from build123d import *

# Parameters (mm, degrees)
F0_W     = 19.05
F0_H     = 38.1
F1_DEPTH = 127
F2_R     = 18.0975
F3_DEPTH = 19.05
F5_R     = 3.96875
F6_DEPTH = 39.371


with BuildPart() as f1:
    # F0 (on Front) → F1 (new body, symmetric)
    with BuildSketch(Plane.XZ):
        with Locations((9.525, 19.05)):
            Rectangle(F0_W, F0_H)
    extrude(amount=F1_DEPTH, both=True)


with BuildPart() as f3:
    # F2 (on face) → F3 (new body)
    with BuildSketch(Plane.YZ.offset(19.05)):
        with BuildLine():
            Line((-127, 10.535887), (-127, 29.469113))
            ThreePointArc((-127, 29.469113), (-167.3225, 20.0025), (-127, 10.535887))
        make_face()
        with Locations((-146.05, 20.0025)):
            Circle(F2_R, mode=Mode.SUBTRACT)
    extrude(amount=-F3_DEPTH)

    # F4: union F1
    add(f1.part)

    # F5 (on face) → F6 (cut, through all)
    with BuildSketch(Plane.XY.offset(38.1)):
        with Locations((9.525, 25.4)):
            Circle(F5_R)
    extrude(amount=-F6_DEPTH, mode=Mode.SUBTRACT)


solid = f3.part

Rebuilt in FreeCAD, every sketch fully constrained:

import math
import FreeCAD as App
import Part
import Sketcher

V = App.Vector
Q = App.Units.Quantity


def add_polygon(sketch, points):
    """Adds a closed chain of lines whose ends are joined by coincident constraints."""
    first, n = sketch.GeometryCount, len(points)
    for a, b in zip(points, points[1:] + points[:1]):
        sketch.addGeometry(Part.LineSegment(App.Vector(*a, 0), App.Vector(*b, 0)), False)
    for i in range(n):
        sketch.addConstraint(Sketcher.Constraint("Coincident", first + i, 2, first + (i + 1) % n, 1))

doc = App.newDocument("Part")
body = doc.addObject("PartDesign::Body", "Body")

sketch1 = body.newObject("Sketcher::SketchObject", "Sketch")
sketch1.AttachmentSupport = (doc.getObject("XZ_Plane"), [""])
sketch1.MapMode = "FlatFace"
add_polygon(sketch1, [(0, 38), (0, 0), (19, 0), (19, 38)])
sketch1.addConstraint([
    Sketcher.Constraint("Vertical", 0),
    Sketcher.Constraint("Horizontal", 1),
    Sketcher.Constraint("Vertical", 2),
    Sketcher.Constraint("Horizontal", 3),
    Sketcher.Constraint("Coincident", 0, 2, -1, 1),
    Sketcher.Constraint("DistanceY", 0, 2, 0, 1, Q("1.5 in")),
    Sketcher.Constraint("DistanceX", 1, 1, 1, 2, Q("0.75 in")),
])
pad1 = body.newObject("PartDesign::Pad", "Pad")
pad1.Profile = sketch1
pad1.Length = Q("10 in")
pad1.Midplane = True
body2 = doc.addObject("PartDesign::Body", "Body001")

sketch2 = body2.newObject("Sketcher::SketchObject", "Sketch001")
sketch2.AttachmentSupport = (doc.getObject("YZ_Plane001"), [""])
sketch2.MapMode = "FlatFace"
sketch2.AttachmentOffset = App.Placement(V(0, 0, 0.75 * 25.4), App.Rotation())
sketch2.addGeometry([
    Part.LineSegment(V(-127, 11, 0), V(-127, 29, 0)),
    Part.ArcOfCircle(Part.Circle(V(-146, 20, 0), V(0, 0, 1), 21), math.radians(26), math.radians(334)),
    Part.Circle(V(-146, 20, 0), V(0, 0, 1), 18),
], False)
sketch2.addConstraint([
    Sketcher.Constraint("Coincident", 0, 1, 1, 2),
    Sketcher.Constraint("Coincident", 1, 1, 0, 2),
    Sketcher.Constraint("Vertical", 0),
    Sketcher.Constraint("Coincident", 2, 3, 1, 3),
    Sketcher.Constraint("Diameter", 2, Q("1.425 in")),
    Sketcher.Constraint("DistanceX", 0, 1, -1, 1, Q("5 in")),
    Sketcher.Constraint("Radius", 1, Q("0.8375 in")),
    Sketcher.Constraint("DistanceX", 1, 3, -1, 1, Q("5.75 in")),
    Sketcher.Constraint("DistanceY", -1, 1, 1, 3, Q("0.7875 in")),
])
pad2 = body2.newObject("PartDesign::Pad", "Pad001")
pad2.Profile = sketch2
pad2.Length = Q("0.75 in")
pad2.Reversed = True
doc.recompute()

boolean = body2.newObject("PartDesign::Boolean", "Boolean")
boolean.Type = "Fuse"
boolean.addObjects([body])

sketch3 = body2.newObject("Sketcher::SketchObject", "Sketch002")
sketch3.AttachmentSupport = (doc.getObject("XY_Plane001"), [""])
sketch3.MapMode = "FlatFace"
sketch3.AttachmentOffset = App.Placement(V(0, 0, 1.5 * 25.4), App.Rotation())
sketch3.addGeometry(Part.Circle(V(9.5, 25.4, 0), V(0, 0, 1), 4), False)
sketch3.addConstraint([
    Sketcher.Constraint("Diameter", 0, Q("0.3125 in")),
    Sketcher.Constraint("DistanceY", -1, 1, 0, 3, Q("1 in")),
    Sketcher.Constraint("DistanceX", -1, 1, 0, 3, Q("0.375 in")),
])
pocket1 = body2.newObject("PartDesign::Pocket", "Pocket")
pocket1.Profile = sketch3
pocket1.Type = "ThroughAll"

doc.recompute()
